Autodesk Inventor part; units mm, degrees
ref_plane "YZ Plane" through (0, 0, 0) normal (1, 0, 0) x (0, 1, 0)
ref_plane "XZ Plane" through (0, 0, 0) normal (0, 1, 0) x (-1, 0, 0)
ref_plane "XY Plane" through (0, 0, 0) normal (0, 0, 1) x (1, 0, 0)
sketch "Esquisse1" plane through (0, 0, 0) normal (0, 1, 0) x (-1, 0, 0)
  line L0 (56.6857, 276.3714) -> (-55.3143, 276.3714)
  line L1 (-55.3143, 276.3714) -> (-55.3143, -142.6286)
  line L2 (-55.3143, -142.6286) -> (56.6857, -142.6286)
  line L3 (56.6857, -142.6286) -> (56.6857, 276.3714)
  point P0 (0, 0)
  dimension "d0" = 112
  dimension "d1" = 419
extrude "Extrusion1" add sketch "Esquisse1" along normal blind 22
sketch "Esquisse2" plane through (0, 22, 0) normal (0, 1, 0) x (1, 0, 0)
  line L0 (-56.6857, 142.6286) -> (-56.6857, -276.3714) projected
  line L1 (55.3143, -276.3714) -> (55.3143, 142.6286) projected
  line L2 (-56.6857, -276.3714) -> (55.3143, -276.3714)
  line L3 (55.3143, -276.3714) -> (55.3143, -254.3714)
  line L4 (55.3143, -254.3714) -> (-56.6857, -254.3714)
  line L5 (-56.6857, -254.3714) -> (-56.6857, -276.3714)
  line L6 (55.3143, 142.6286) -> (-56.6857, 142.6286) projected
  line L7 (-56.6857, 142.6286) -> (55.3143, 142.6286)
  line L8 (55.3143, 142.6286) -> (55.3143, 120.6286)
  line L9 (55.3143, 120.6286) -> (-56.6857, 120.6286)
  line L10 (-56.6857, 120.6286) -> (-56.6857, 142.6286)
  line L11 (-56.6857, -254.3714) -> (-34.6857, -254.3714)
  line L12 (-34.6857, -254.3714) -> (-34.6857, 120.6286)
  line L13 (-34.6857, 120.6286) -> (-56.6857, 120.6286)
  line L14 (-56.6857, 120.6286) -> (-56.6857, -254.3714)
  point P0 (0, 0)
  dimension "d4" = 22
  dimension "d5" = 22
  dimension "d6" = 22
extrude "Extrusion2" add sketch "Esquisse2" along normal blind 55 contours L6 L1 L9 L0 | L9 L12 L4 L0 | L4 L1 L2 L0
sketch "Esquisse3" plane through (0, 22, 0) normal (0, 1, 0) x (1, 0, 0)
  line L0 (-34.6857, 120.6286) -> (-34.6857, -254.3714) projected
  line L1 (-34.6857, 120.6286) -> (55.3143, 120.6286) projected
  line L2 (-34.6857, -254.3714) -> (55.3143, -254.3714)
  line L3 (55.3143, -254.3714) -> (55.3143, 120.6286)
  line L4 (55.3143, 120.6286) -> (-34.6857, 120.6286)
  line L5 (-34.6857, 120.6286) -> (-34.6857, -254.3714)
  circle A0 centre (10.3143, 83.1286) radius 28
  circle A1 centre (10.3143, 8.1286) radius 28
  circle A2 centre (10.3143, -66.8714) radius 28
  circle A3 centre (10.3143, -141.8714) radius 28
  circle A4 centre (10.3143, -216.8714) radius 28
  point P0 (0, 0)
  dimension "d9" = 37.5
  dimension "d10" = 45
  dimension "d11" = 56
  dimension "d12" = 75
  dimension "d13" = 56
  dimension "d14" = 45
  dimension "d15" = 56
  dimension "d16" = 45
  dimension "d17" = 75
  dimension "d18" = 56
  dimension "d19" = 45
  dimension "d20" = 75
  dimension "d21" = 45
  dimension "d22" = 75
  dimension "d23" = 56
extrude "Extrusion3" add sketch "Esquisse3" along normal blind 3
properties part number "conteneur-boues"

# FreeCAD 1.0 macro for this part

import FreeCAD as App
import Part
import Sketcher

doc = App.newDocument("Part")
body = doc.addObject("PartDesign::Body", "Body")

# Sketch on XZ plane
sketch1 = doc.addObject("Sketcher::SketchObject", "Sketch")
body.addObject(sketch1)
sketch1.AttachmentSupport = (doc.XZ_Plane, [""])
sketch1.MapMode = "FlatFace"
sketch1.addGeometry(Part.LineSegment(App.Vector(-57, -143, 0), App.Vector(-57, 276, 0)), False)
sketch1.addGeometry(Part.LineSegment(App.Vector(-57, 276, 0), App.Vector(55, 276, 0)), False)
sketch1.addGeometry(Part.LineSegment(App.Vector(55, 276, 0), App.Vector(55, -143, 0)), False)
sketch1.addGeometry(Part.LineSegment(App.Vector(55, -143, 0), App.Vector(-57, -143, 0)), False)
sketch1.addConstraint(Sketcher.Constraint("Coincident", 0, 2, 1, 1))
sketch1.addConstraint(Sketcher.Constraint("Coincident", 1, 2, 2, 1))
sketch1.addConstraint(Sketcher.Constraint("Coincident", 2, 2, 3, 1))
sketch1.addConstraint(Sketcher.Constraint("Coincident", 3, 2, 0, 1))
sketch1.addConstraint(Sketcher.Constraint("Vertical", 0))
sketch1.addConstraint(Sketcher.Constraint("Horizontal", 1))
sketch1.addConstraint(Sketcher.Constraint("Vertical", 2))
sketch1.addConstraint(Sketcher.Constraint("Horizontal", 3))
sketch1.addConstraint(Sketcher.Constraint("DistanceX", 1, 1, 1, 2, 112.0))
sketch1.addConstraint(Sketcher.Constraint("DistanceY", 0, 1, 0, 2, 419.0))
sketch1.addConstraint(Sketcher.Constraint("DistanceX", 0, 2, -1, 1, 56.6857))
sketch1.addConstraint(Sketcher.Constraint("DistanceY", -1, 1, 0, 2, 276.3714))
pad1 = doc.addObject("PartDesign::Pad", "Pad")
body.addObject(pad1)
pad1.Profile = sketch1
pad1.Length = 22
pad1.Reversed = True

# Sketch on XZ plane
sketch2 = doc.addObject("Sketcher::SketchObject", "Sketch001")
body.addObject(sketch2)
sketch2.AttachmentSupport = (doc.XZ_Plane, [""])
sketch2.MapMode = "FlatFace"
sketch2.AttachmentOffset = App.Placement(App.Vector(0, 0, -22), App.Rotation())
sketch2.addGeometry(Part.LineSegment(App.Vector(55, -143, 0), App.Vector(-57, -143, 0)), False)
sketch2.addGeometry(Part.LineSegment(App.Vector(-57, -143, 0), App.Vector(-57, 276, 0)), False)
sketch2.addGeometry(Part.LineSegment(App.Vector(-57, 276, 0), App.Vector(55, 276, 0)), False)
sketch2.addGeometry(Part.LineSegment(App.Vector(55, 276, 0), App.Vector(55, 254, 0)), False)
sketch2.addGeometry(Part.LineSegment(App.Vector(55, 254, 0), App.Vector(-35, 254, 0)), False)
sketch2.addGeometry(Part.LineSegment(App.Vector(-35, 254, 0), App.Vector(-35, -121, 0)), False)
sketch2.addGeometry(Part.LineSegment(App.Vector(-35, -121, 0), App.Vector(55, -121, 0)), False)
sketch2.addGeometry(Part.LineSegment(App.Vector(55, -121, 0), App.Vector(55, -143, 0)), False)
sketch2.addConstraint(Sketcher.Constraint("Coincident", 0, 2, 1, 1))
sketch2.addConstraint(Sketcher.Constraint("Coincident", 1, 2, 2, 1))
sketch2.addConstraint(Sketcher.Constraint("Coincident", 2, 2, 3, 1))
sketch2.addConstraint(Sketcher.Constraint("Coincident", 3, 2, 4, 1))
sketch2.addConstraint(Sketcher.Constraint("Coincident", 4, 2, 5, 1))
sketch2.addConstraint(Sketcher.Constraint("Coincident", 5, 2, 6, 1))
sketch2.addConstraint(Sketcher.Constraint("Coincident", 6, 2, 7, 1))
sketch2.addConstraint(Sketcher.Constraint("Coincident", 7, 2, 0, 1))
sketch2.addConstraint(Sketcher.Constraint("Horizontal", 0))
sketch2.addConstraint(Sketcher.Constraint("Vertical", 1))
sketch2.addConstraint(Sketcher.Constraint("Horizontal", 2))
sketch2.addConstraint(Sketcher.Constraint("Vertical", 3))
sketch2.addConstraint(Sketcher.Constraint("Horizontal", 4))
sketch2.addConstraint(Sketcher.Constraint("Vertical", 5))
sketch2.addConstraint(Sketcher.Constraint("Horizontal", 6))
sketch2.addConstraint(Sketcher.Constraint("Vertical", 7))
sketch2.addConstraint(Sketcher.Constraint("Vertical", 3, 2, 6, 2))
sketch2.addConstraint(Sketcher.Constraint("Equal", 3, 7))
sketch2.addConstraint(Sketcher.Constraint("DistanceY", 3, 2, 3, 1, 22.0))
sketch2.addConstraint(Sketcher.Constraint("DistanceX", 1, 2, 4, 2, 22.0))
sketch2.addConstraint(Sketcher.Constraint("DistanceX", 0, 2, 0, 1, 112.0))
sketch2.addConstraint(Sketcher.Constraint("DistanceY", 1, 1, 1, 2, 419.0))
sketch2.addConstraint(Sketcher.Constraint("DistanceX", 0, 2, -1, 1, 56.6857))
sketch2.addConstraint(Sketcher.Constraint("DistanceY", 0, 2, -1, 1, 142.6286))
pad2 = doc.addObject("PartDesign::Pad", "Pad001")
body.addObject(pad2)
pad2.Profile = sketch2
pad2.Length = 55
pad2.Reversed = True

# Sketch on XZ plane
sketch3 = doc.addObject("Sketcher::SketchObject", "Sketch002")
body.addObject(sketch3)
sketch3.AttachmentSupport = (doc.XZ_Plane, [""])
sketch3.MapMode = "FlatFace"
sketch3.AttachmentOffset = App.Placement(App.Vector(0, 0, -22), App.Rotation())
sketch3.addGeometry(Part.LineSegment(App.Vector(55, -121, 0), App.Vector(-35, -121, 0)), False)
sketch3.addGeometry(Part.LineSegment(App.Vector(-35, -121, 0), App.Vector(-35, 254, 0)), False)
sketch3.addGeometry(Part.LineSegment(App.Vector(-35, 254, 0), App.Vector(55, 254, 0)), False)
sketch3.addGeometry(Part.LineSegment(App.Vector(55, 254, 0), App.Vector(55, -121, 0)), False)
sketch3.addGeometry(Part.Circle(App.Vector(10, 217, 0), App.Vector(0, 0, 1), 28), False)
sketch3.addGeometry(Part.Circle(App.Vector(10, 142, 0), App.Vector(0, 0, 1), 28), False)
sketch3.addGeometry(Part.Circle(App.Vector(10, 67, 0), App.Vector(0, 0, 1), 28), False)
sketch3.addGeometry(Part.Circle(App.Vector(10, -8, 0), App.Vector(0, 0, 1), 28), False)
sketch3.addGeometry(Part.Circle(App.Vector(10, -83, 0), App.Vector(0, 0, 1), 28), False)
sketch3.addConstraint(Sketcher.Constraint("Coincident", 0, 2, 1, 1))
sketch3.addConstraint(Sketcher.Constraint("Coincident", 1, 2, 2, 1))
sketch3.addConstraint(Sketcher.Constraint("Coincident", 2, 2, 3, 1))
sketch3.addConstraint(Sketcher.Constraint("Coincident", 3, 2, 0, 1))
sketch3.addConstraint(Sketcher.Constraint("Horizontal", 0))
sketch3.addConstraint(Sketcher.Constraint("Vertical", 1))
sketch3.addConstraint(Sketcher.Constraint("Horizontal", 2))
sketch3.addConstraint(Sketcher.Constraint("Vertical", 3))
sketch3.addConstraint(Sketcher.Constraint("Equal", 4, 5))
sketch3.addConstraint(Sketcher.Constraint("Equal", 5, 6))
sketch3.addConstraint(Sketcher.Constraint("Equal", 6, 7))
sketch3.addConstraint(Sketcher.Constraint("Equal", 7, 8))
sketch3.addConstraint(Sketcher.Constraint("Vertical", 4, 3, 5, 3))
sketch3.addConstraint(Sketcher.Constraint("Vertical", 5, 3, 6, 3))
sketch3.addConstraint(Sketcher.Constraint("Vertical", 6, 3, 7, 3))
sketch3.addConstraint(Sketcher.Constraint("Vertical", 7, 3, 8, 3))
sketch3.addConstraint(Sketcher.Constraint("Diameter", 4, 56.0))
sketch3.addConstraint(Sketcher.Constraint("DistanceY", 5, 3, 4, 3, 75.0))
sketch3.addConstraint(Sketcher.Constraint("DistanceY", 6, 3, 5, 3, 75.0))
sketch3.addConstraint(Sketcher.Constraint("DistanceY", 7, 3, 6, 3, 75.0))
sketch3.addConstraint(Sketcher.Constraint("DistanceY", 8, 3, 7, 3, 75.0))
sketch3.addConstraint(Sketcher.Constraint("DistanceX", 0, 2, 8, 3, 45.0))
sketch3.addConstraint(Sketcher.Constraint("DistanceX", 4, 3, 2, 2, 45.0))
sketch3.addConstraint(Sketcher.Constraint("DistanceY", 0, 2, 8, 3, 37.5))
sketch3.addConstraint(Sketcher.Constraint("DistanceY", 4, 3, 1, 2, 37.5))
sketch3.addConstraint(Sketcher.Constraint("DistanceX", -1, 1, 4, 3, 10.3143))
sketch3.addConstraint(Sketcher.Constraint("DistanceY", -1, 1, 4, 3, 216.8714))
pad3 = doc.addObject("PartDesign::Pad", "Pad002")
body.addObject(pad3)
pad3.Profile = sketch3
pad3.Length = 3
pad3.Reversed = True

doc.recompute()
